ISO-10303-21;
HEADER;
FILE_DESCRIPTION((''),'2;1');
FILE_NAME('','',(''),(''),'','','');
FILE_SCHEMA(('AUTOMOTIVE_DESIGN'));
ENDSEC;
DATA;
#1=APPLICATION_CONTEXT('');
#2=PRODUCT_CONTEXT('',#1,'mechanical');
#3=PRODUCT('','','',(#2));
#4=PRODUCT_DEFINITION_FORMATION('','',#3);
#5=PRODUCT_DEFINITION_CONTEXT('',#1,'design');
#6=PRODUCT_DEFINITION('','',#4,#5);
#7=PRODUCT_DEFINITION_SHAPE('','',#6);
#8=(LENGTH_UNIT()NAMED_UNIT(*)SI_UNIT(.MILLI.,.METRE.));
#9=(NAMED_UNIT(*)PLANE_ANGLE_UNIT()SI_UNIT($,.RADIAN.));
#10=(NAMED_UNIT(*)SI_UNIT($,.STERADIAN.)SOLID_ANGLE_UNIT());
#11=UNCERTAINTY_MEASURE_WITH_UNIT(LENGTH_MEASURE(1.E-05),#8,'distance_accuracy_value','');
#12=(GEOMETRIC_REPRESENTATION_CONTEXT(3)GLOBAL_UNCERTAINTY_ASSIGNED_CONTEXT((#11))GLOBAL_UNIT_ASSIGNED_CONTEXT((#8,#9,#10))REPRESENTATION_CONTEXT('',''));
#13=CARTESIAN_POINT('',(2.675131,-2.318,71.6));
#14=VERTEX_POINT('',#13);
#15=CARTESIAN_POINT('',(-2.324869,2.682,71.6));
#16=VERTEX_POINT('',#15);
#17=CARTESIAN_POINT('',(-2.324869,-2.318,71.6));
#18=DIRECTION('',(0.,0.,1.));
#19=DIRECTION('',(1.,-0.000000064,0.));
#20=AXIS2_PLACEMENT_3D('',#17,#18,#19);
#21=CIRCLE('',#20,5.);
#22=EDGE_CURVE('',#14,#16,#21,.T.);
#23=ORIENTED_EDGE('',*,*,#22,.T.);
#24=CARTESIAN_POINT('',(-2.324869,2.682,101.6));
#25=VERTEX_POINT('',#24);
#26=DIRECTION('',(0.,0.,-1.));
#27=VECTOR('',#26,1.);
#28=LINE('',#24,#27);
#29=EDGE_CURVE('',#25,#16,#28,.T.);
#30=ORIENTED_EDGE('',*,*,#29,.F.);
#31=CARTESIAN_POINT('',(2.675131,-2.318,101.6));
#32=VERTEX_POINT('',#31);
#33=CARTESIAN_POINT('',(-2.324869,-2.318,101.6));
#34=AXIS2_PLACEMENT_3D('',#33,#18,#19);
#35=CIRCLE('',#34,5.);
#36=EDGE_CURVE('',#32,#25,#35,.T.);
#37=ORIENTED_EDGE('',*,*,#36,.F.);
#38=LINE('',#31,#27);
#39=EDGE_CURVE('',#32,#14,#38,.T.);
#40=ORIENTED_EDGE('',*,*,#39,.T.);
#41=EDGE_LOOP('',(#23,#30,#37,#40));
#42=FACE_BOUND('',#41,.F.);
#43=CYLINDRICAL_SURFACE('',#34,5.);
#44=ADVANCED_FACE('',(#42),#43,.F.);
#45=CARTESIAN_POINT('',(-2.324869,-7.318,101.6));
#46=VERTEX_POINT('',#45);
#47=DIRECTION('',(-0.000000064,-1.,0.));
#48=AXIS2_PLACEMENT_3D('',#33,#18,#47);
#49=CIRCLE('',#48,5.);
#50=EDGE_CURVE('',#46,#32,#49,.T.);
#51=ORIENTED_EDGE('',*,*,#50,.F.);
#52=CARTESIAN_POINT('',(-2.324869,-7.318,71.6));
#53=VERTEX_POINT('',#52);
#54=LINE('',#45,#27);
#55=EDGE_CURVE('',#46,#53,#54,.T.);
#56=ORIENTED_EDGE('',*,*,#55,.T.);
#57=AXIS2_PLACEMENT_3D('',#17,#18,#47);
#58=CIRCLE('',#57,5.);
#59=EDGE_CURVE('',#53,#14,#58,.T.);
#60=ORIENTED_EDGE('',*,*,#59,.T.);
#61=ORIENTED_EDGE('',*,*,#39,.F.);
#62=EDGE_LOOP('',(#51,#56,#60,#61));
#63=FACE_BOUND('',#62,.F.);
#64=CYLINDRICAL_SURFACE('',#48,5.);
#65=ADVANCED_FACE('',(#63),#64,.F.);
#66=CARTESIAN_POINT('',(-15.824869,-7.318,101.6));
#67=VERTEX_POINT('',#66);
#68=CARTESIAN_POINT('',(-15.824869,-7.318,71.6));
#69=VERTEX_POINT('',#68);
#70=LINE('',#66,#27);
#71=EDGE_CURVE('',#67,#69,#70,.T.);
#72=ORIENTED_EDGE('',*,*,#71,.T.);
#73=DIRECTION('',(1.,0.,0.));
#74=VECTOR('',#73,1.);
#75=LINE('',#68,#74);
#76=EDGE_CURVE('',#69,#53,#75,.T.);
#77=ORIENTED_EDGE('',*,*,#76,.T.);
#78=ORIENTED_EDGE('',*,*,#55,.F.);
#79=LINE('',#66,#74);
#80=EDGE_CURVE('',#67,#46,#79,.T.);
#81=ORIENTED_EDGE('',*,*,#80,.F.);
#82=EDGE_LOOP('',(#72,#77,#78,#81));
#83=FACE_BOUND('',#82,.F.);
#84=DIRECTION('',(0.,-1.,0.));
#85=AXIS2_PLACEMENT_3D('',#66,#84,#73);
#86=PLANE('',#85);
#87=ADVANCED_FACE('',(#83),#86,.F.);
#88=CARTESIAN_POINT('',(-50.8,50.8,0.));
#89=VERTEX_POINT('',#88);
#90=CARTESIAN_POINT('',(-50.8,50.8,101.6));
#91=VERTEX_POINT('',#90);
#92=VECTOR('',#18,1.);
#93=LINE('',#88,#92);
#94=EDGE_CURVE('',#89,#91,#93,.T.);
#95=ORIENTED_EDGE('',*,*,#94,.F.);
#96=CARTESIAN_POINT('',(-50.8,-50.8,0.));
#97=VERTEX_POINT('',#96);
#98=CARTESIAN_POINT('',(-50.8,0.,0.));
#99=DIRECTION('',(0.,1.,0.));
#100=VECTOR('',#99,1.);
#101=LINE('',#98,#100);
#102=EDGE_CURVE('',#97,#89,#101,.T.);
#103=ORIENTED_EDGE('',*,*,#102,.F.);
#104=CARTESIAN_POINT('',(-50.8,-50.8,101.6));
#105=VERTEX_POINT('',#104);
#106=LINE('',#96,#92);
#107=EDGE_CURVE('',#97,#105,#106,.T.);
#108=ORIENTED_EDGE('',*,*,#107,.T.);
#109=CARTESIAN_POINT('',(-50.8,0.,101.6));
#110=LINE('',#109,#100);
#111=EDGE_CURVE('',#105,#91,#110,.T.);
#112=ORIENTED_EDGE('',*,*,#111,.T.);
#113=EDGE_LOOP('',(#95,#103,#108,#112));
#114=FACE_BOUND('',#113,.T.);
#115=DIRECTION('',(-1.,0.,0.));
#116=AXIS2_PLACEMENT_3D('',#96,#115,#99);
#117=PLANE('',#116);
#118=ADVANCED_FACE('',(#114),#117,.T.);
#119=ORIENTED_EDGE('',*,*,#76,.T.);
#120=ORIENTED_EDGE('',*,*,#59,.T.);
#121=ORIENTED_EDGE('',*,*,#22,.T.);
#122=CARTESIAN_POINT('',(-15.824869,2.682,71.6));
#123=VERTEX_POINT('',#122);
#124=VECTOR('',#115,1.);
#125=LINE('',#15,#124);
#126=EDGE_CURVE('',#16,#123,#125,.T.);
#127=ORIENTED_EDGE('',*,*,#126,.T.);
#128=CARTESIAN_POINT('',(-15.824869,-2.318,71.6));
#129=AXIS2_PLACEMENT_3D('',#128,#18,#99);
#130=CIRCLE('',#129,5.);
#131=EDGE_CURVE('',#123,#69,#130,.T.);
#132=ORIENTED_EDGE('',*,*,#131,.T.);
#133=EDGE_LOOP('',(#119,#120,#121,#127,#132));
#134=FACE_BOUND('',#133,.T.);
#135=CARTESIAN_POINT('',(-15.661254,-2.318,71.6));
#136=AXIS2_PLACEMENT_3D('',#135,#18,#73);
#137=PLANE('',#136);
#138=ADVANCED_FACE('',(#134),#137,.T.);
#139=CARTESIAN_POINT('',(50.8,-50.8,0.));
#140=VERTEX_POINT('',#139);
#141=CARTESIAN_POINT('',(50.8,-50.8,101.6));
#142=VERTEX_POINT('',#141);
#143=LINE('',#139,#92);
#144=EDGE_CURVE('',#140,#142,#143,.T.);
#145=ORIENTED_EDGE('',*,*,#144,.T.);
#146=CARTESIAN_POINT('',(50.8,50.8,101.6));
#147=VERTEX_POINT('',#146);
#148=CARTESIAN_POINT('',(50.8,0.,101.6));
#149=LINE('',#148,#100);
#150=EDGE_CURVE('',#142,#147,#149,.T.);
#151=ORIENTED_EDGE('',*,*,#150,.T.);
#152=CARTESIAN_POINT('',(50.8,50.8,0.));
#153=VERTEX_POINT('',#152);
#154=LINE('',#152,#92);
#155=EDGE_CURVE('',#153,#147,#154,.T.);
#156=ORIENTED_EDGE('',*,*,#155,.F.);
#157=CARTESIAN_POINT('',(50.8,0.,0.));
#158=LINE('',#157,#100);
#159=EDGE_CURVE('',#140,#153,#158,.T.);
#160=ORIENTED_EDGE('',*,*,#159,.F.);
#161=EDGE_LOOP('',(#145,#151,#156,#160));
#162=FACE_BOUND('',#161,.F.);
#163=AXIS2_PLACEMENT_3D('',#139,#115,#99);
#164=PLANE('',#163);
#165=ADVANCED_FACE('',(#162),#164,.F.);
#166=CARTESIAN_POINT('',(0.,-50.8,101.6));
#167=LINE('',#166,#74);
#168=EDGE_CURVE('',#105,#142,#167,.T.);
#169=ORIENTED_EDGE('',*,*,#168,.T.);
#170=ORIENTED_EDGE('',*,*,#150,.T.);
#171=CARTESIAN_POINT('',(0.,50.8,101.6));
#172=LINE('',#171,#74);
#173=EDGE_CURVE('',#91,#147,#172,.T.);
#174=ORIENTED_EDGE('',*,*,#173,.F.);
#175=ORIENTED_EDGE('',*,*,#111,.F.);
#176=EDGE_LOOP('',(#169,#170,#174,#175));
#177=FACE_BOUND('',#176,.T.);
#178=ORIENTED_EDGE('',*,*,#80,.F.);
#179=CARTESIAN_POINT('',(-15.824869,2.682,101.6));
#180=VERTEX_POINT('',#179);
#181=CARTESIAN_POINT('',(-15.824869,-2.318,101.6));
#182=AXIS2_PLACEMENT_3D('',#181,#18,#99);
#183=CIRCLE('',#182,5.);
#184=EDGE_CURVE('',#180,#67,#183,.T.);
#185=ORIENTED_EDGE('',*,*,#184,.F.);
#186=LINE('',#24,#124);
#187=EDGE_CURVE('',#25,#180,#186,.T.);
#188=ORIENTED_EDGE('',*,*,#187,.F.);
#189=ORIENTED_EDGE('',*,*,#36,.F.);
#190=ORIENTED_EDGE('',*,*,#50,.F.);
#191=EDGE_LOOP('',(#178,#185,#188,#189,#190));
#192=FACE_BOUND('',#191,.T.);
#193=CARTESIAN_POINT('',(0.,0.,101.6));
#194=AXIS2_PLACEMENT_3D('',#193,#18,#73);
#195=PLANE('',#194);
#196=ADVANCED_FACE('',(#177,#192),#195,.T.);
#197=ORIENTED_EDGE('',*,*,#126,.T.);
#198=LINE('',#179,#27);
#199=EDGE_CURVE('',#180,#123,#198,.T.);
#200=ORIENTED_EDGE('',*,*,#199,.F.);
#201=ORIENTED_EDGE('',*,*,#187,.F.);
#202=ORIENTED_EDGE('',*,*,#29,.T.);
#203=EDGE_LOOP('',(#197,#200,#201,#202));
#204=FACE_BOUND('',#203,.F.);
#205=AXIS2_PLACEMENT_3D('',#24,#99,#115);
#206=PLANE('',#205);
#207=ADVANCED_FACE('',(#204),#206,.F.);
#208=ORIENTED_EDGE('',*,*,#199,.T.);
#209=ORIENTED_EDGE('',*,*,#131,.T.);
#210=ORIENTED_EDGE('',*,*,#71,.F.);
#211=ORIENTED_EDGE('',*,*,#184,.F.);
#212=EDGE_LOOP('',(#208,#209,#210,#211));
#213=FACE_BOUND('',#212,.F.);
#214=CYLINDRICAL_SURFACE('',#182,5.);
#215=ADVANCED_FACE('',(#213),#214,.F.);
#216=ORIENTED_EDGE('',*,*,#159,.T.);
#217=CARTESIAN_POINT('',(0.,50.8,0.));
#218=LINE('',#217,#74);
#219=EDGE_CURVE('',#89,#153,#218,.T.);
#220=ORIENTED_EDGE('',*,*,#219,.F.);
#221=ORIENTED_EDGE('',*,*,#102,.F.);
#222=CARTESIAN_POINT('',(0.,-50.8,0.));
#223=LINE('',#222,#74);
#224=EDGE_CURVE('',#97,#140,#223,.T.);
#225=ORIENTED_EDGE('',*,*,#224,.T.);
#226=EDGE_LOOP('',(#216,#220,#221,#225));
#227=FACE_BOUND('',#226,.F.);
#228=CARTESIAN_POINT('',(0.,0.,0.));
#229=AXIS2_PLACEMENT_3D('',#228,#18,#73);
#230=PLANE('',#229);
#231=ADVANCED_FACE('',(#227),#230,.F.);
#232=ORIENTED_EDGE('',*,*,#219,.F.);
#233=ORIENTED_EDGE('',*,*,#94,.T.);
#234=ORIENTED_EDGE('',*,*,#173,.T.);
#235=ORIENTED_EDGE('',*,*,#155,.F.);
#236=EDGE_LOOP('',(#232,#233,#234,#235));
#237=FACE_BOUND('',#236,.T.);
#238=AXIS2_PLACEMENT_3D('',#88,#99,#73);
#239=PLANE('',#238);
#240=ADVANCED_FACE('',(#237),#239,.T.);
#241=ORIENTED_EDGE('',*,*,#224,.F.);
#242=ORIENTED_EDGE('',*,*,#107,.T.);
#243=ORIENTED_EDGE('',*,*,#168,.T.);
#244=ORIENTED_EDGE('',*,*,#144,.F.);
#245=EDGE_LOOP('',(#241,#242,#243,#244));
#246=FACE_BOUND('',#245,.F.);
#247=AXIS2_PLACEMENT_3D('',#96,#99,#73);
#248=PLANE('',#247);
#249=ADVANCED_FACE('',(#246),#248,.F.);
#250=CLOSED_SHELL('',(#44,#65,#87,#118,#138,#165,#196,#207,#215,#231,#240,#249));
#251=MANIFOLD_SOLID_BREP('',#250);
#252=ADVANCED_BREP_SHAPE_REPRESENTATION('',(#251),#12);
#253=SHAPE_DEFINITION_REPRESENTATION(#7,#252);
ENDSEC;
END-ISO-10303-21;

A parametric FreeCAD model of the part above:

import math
import FreeCAD as App
import Part
import Sketcher

V = App.Vector

doc = App.newDocument("Part")
body = doc.addObject("PartDesign::Body", "Body")

sketch1 = body.newObject("Sketcher::SketchObject", "Sketch")
sketch1.AttachmentSupport = (doc.getObject("XY_Plane"), [""])
sketch1.MapMode = "FlatFace"
sketch1.addGeometry([
    Part.LineSegment(V(-51, 51, 0), V(-51, -51, 0)),
    Part.LineSegment(V(-51, -51, 0), V(51, -51, 0)),
    Part.LineSegment(V(51, -51, 0), V(51, 51, 0)),
    Part.LineSegment(V(51, 51, 0), V(-51, 51, 0)),
], False)
sketch1.addConstraint([
    Sketcher.Constraint("Coincident", 0, 2, 1, 1),
    Sketcher.Constraint("Coincident", 1, 2, 2, 1),
    Sketcher.Constraint("Coincident", 2, 2, 3, 1),
    Sketcher.Constraint("Coincident", 3, 2, 0, 1),
    Sketcher.Constraint("Vertical", 0),
    Sketcher.Constraint("Horizontal", 1),
    Sketcher.Constraint("Vertical", 2),
    Sketcher.Constraint("Horizontal", 3),
    Sketcher.Constraint("Symmetric", 0, 2, 2, 2, -1, 1),
    Sketcher.Constraint("Equal", 3, 0),
    Sketcher.Constraint("DistanceX", 1, 1, 1, 2, 101.6),
])
pad1 = body.newObject("PartDesign::Pad", "Pad")
pad1.Profile = sketch1
pad1.Length = 101.6

sketch2 = body.newObject("Sketcher::SketchObject", "Sketch001")
sketch2.AttachmentSupport = (doc.getObject("XY_Plane"), [""])
sketch2.MapMode = "FlatFace"
sketch2.AttachmentOffset = App.Placement(V(0, 0, 101.6), App.Rotation())
sketch2.addGeometry([
    Part.ArcOfCircle(Part.Circle(V(-15.8, -2.3, 0), V(0, 0, 1), 5), math.radians(90), math.radians(270)),
    Part.LineSegment(V(-15.8, -7.3, 0), V(-2.3, -7.3, 0)),
    Part.ArcOfCircle(Part.Circle(V(-2.3, -2.3, 0), V(0, 0, 1), 5), math.radians(-90), math.radians(0)),
    Part.ArcOfCircle(Part.Circle(V(-2.3, -2.3, 0), V(0, 0, 1), 5), math.radians(0), math.radians(90)),
    Part.LineSegment(V(-2.3, 2.7, 0), V(-15.8, 2.7, 0)),
], False)
sketch2.addConstraint([
    Sketcher.Constraint("Tangent", 0, 2, 1, 1),
    Sketcher.Constraint("Tangent", 1, 2, 2, 1),
    Sketcher.Constraint("Tangent", 2, 2, 3, 1),
    Sketcher.Constraint("Tangent", 3, 2, 4, 1),
    Sketcher.Constraint("Tangent", 4, 2, 0, 1),
    Sketcher.Constraint("Horizontal", 1),
    Sketcher.Constraint("Horizontal", 4),
    Sketcher.Constraint("Equal", 0, 2),
    Sketcher.Constraint("Horizontal", 3, 3, 2, 2),
    Sketcher.Constraint("Radius", 0, 5.0),
    Sketcher.Constraint("DistanceX", 1, 1, 1, 2, 13.5),
    Sketcher.Constraint("DistanceY", 0, 3, -1, 1, 2.318),
    Sketcher.Constraint("DistanceX", 0, 3, -1, 1, 15.824869),
])
pocket1 = body.newObject("PartDesign::Pocket", "Pocket")
pocket1.Profile = sketch2
pocket1.Length = 30

doc.recompute()
